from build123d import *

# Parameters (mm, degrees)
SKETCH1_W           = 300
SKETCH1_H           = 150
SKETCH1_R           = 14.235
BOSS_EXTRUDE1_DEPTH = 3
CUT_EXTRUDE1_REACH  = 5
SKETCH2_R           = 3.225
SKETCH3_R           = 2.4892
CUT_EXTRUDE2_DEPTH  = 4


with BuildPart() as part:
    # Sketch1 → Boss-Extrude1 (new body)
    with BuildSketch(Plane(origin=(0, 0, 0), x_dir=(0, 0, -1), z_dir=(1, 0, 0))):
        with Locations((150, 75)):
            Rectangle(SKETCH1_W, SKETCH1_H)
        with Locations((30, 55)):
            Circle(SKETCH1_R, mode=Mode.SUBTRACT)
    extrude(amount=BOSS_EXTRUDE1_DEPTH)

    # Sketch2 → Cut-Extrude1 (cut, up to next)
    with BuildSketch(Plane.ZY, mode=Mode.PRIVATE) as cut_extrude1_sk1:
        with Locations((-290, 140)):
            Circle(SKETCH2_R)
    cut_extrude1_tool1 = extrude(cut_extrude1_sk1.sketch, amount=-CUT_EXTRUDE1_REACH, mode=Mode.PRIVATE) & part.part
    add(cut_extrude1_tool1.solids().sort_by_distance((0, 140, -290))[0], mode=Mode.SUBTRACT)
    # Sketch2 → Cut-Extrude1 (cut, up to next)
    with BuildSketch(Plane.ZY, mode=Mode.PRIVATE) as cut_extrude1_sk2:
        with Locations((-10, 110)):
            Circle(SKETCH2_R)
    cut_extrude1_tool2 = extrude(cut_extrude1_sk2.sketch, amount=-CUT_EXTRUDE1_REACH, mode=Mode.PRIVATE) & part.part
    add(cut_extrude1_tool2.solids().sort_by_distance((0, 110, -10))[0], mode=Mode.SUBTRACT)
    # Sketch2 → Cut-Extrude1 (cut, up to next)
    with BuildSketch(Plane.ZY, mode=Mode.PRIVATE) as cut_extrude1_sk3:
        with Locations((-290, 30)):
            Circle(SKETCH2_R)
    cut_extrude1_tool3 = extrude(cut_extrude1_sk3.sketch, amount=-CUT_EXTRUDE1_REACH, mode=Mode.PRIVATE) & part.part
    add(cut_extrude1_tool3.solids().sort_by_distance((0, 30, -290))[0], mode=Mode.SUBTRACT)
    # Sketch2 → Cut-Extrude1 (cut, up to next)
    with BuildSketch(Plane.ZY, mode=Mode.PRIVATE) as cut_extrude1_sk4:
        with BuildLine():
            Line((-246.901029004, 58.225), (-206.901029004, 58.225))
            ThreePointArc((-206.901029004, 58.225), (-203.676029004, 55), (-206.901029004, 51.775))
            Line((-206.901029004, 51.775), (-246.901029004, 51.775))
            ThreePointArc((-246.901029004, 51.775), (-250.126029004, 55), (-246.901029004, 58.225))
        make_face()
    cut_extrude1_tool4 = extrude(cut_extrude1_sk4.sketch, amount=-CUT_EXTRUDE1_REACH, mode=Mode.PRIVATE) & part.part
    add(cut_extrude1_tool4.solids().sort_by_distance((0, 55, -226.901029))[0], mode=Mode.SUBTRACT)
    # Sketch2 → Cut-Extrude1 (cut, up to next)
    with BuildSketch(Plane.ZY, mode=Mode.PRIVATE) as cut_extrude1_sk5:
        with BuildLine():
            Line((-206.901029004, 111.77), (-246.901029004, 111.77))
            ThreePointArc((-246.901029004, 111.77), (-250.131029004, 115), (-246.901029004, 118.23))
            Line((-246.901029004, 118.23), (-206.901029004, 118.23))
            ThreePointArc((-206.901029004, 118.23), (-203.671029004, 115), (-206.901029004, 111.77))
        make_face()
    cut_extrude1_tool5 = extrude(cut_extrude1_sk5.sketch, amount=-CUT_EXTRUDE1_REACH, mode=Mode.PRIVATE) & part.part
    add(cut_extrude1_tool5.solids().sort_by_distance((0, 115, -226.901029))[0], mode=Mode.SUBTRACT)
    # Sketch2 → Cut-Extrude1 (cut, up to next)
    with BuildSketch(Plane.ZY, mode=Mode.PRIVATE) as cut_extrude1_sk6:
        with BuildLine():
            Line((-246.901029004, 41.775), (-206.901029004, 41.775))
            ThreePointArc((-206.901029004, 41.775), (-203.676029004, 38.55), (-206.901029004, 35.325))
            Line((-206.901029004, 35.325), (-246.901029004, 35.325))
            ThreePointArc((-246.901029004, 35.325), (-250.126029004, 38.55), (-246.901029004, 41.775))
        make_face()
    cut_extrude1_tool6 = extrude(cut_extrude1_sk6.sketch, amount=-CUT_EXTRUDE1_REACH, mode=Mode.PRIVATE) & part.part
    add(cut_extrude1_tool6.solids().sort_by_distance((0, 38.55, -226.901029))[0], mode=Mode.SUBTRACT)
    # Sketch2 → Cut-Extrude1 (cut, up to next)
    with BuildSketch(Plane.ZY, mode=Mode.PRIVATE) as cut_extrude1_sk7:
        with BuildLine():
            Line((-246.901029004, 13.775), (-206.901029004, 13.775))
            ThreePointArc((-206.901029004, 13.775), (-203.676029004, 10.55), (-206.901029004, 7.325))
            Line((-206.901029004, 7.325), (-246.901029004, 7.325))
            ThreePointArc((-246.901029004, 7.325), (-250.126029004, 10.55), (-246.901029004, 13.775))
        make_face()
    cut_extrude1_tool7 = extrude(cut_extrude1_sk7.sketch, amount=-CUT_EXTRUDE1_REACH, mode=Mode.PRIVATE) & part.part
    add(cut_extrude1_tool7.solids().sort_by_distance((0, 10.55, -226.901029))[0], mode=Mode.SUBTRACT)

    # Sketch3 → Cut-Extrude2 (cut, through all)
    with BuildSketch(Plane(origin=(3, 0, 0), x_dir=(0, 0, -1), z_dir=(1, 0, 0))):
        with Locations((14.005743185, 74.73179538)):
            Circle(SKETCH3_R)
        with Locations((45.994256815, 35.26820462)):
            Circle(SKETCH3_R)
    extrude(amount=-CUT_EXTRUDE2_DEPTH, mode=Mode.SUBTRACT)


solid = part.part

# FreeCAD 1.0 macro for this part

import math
import FreeCAD as App
import Part
import Sketcher
from FreeCAD import Vector


def add_polygon(sketch, points):
    """Adds a closed chain of lines whose ends are joined by coincident constraints."""
    first, n = sketch.GeometryCount, len(points)
    for a, b in zip(points, points[1:] + points[:1]):
        sketch.addGeometry(Part.LineSegment(App.Vector(*a, 0), App.Vector(*b, 0)), False)
    for i in range(n):
        sketch.addConstraint(Sketcher.Constraint("Coincident", first + i, 2, first + (i + 1) % n, 1))

doc = App.newDocument("Part")
body = doc.addObject("PartDesign::Body", "Body")

# Sketch on YZ plane
sketch1 = body.newObject("Sketcher::SketchObject", "Sketch")
sketch1.AttachmentSupport = (doc.getObject("YZ_Plane"), [""])
sketch1.MapMode = "FlatFace"
add_polygon(sketch1, [(150, 0), (0, 0), (0, -300), (150, -300)])  # lines 0-3
sketch1.addGeometry(Part.Circle(Vector(55, -30, 0), Vector(0, 0, 1), 14.235), False)  # 4
sketch1.addConstraint([
    Sketcher.Constraint("Horizontal", 0),
    Sketcher.Constraint("Vertical", 1),
    Sketcher.Constraint("Horizontal", 2),
    Sketcher.Constraint("Vertical", 3),
    Sketcher.Constraint("Coincident", 0, 2, -1, 1),
    Sketcher.Constraint("Diameter", 4, 28.47),
    Sketcher.Constraint("DistanceX", 0, 2, 0, 1, 150.0),
    Sketcher.Constraint("DistanceY", 1, 2, 1, 1, 300.0),
    Sketcher.Constraint("DistanceX", -1, 1, 4, 3, 55.0),
    Sketcher.Constraint("DistanceY", 4, 3, -1, 1, 30.0),
])
pad1 = body.newObject("PartDesign::Pad", "Pad")
pad1.Profile = sketch1
pad1.Length = 3

# Sketch on YZ plane
sketch2 = body.newObject("Sketcher::SketchObject", "Sketch001")
sketch2.AttachmentSupport = (doc.getObject("YZ_Plane"), [""])
sketch2.MapMode = "FlatFace"
sketch2.addGeometry(Part.Circle(Vector(140, -290, 0), Vector(0, 0, 1), 3.225), False)
sketch2.addConstraint([
    Sketcher.Constraint("Diameter", 0, 6.45),
    Sketcher.Constraint("DistanceX", -1, 1, 0, 3, 140.0),
    Sketcher.Constraint("DistanceY", 0, 3, -1, 1, 290.0),
])
pocket1 = body.newObject("PartDesign::Pocket", "Pocket")
pocket1.Profile = sketch2
pocket1.Type = "UpToFirst"
pocket1.Reversed = True

# Sketch on YZ plane
sketch3 = body.newObject("Sketcher::SketchObject", "Sketch002")
sketch3.AttachmentSupport = (doc.getObject("YZ_Plane"), [""])
sketch3.MapMode = "FlatFace"
sketch3.addGeometry(Part.Circle(Vector(110, -10, 0), Vector(0, 0, 1), 3.225), False)
sketch3.addConstraint([
    Sketcher.Constraint("Diameter", 0, 6.45),
    Sketcher.Constraint("DistanceX", -1, 1, 0, 3, 110.0),
    Sketcher.Constraint("DistanceY", 0, 3, -1, 1, 10.0),
])
pocket2 = body.newObject("PartDesign::Pocket", "Pocket001")
pocket2.Profile = sketch3
pocket2.Type = "UpToFirst"
pocket2.Reversed = True

# Sketch on YZ plane
sketch4 = body.newObject("Sketcher::SketchObject", "Sketch003")
sketch4.AttachmentSupport = (doc.getObject("YZ_Plane"), [""])
sketch4.MapMode = "FlatFace"
sketch4.addGeometry(Part.Circle(Vector(30, -290, 0), Vector(0, 0, 1), 3.225), False)
sketch4.addConstraint([
    Sketcher.Constraint("Diameter", 0, 6.45),
    Sketcher.Constraint("DistanceX", -1, 1, 0, 3, 30.0),
    Sketcher.Constraint("DistanceY", 0, 3, -1, 1, 290.0),
])
pocket3 = body.newObject("PartDesign::Pocket", "Pocket002")
pocket3.Profile = sketch4
pocket3.Type = "UpToFirst"
pocket3.Reversed = True

# Sketch on YZ plane
sketch5 = body.newObject("Sketcher::SketchObject", "Sketch004")
sketch5.AttachmentSupport = (doc.getObject("YZ_Plane"), [""])
sketch5.MapMode = "FlatFace"
sketch5.addGeometry([
    Part.LineSegment(Vector(58.225, -206.901029, 0), Vector(58.225, -246.901029, 0)),
    Part.ArcOfCircle(Part.Circle(Vector(55, -246.901029, 0), Vector(0, 0, 1), 3.225), math.radians(180), math.radians(360)),
    Part.LineSegment(Vector(51.775, -246.901029, 0), Vector(51.775, -206.901029, 0)),
    Part.ArcOfCircle(Part.Circle(Vector(55, -206.901029, 0), Vector(0, 0, 1), 3.225), math.radians(0), math.radians(180)),
], False)
sketch5.addConstraint([
    Sketcher.Constraint("Tangent", 0, 2, 1, 2),
    Sketcher.Constraint("Tangent", 1, 1, 2, 1),
    Sketcher.Constraint("Tangent", 2, 2, 3, 2),
    Sketcher.Constraint("Tangent", 3, 1, 0, 1),
    Sketcher.Constraint("Vertical", 0),
    Sketcher.Constraint("Vertical", 2),
    Sketcher.Constraint("DistanceY", 0, 2, 0, 1, 40.0),
    Sketcher.Constraint("DistanceX", -1, 1, 1, 3, 55.0),
    Sketcher.Constraint("Radius", 1, 3.225),
    Sketcher.Constraint("DistanceY", 1, 3, -1, 1, 246.901029),
])
pocket4 = body.newObject("PartDesign::Pocket", "Pocket003")
pocket4.Profile = sketch5
pocket4.Type = "UpToFirst"
pocket4.Reversed = True

# Sketch on YZ plane
sketch6 = body.newObject("Sketcher::SketchObject", "Sketch005")
sketch6.AttachmentSupport = (doc.getObject("YZ_Plane"), [""])
sketch6.MapMode = "FlatFace"
sketch6.addGeometry([
    Part.LineSegment(Vector(111.77, -246.901029, 0), Vector(111.77, -206.901029, 0)),
    Part.ArcOfCircle(Part.Circle(Vector(115, -206.901029, 0), Vector(0, 0, 1), 3.23), math.radians(0), math.radians(180)),
    Part.LineSegment(Vector(118.23, -206.901029, 0), Vector(118.23, -246.901029, 0)),
    Part.ArcOfCircle(Part.Circle(Vector(115, -246.901029, 0), Vector(0, 0, 1), 3.23), math.radians(180), math.radians(360)),
], False)
sketch6.addConstraint([
    Sketcher.Constraint("Tangent", 0, 2, 1, 2),
    Sketcher.Constraint("Tangent", 1, 1, 2, 1),
    Sketcher.Constraint("Tangent", 2, 2, 3, 2),
    Sketcher.Constraint("Tangent", 3, 1, 0, 1),
    Sketcher.Constraint("Vertical", 0),
    Sketcher.Constraint("Vertical", 2),
    Sketcher.Constraint("DistanceY", 0, 1, 0, 2, 40.0),
    Sketcher.Constraint("Radius", 1, 3.23),
    Sketcher.Constraint("DistanceX", -1, 1, 1, 3, 115.0),
    Sketcher.Constraint("DistanceY", 1, 3, -1, 1, 206.901029),
])
pocket5 = body.newObject("PartDesign::Pocket", "Pocket004")
pocket5.Profile = sketch6
pocket5.Type = "UpToFirst"
pocket5.Reversed = True

# Sketch on YZ plane
sketch7 = body.newObject("Sketcher::SketchObject", "Sketch006")
sketch7.AttachmentSupport = (doc.getObject("YZ_Plane"), [""])
sketch7.MapMode = "FlatFace"
sketch7.addGeometry([
    Part.LineSegment(Vector(41.775, -206.901029, 0), Vector(41.775, -246.901029, 0)),
    Part.ArcOfCircle(Part.Circle(Vector(38.55, -246.901029, 0), Vector(0, 0, 1), 3.225), math.radians(180), math.radians(360)),
    Part.LineSegment(Vector(35.325, -246.901029, 0), Vector(35.325, -206.901029, 0)),
    Part.ArcOfCircle(Part.Circle(Vector(38.55, -206.901029, 0), Vector(0, 0, 1), 3.225), math.radians(0), math.radians(180)),
], False)
sketch7.addConstraint([
    Sketcher.Constraint("Tangent", 0, 2, 1, 2),
    Sketcher.Constraint("Tangent", 1, 1, 2, 1),
    Sketcher.Constraint("Tangent", 2, 2, 3, 2),
    Sketcher.Constraint("Tangent", 3, 1, 0, 1),
    Sketcher.Constraint("Vertical", 0),
    Sketcher.Constraint("Vertical", 2),
    Sketcher.Constraint("DistanceY", 0, 2, 0, 1, 40.0),
    Sketcher.Constraint("Radius", 1, 3.225),
    Sketcher.Constraint("DistanceX", -1, 1, 1, 3, 38.55),
    Sketcher.Constraint("DistanceY", 1, 3, -1, 1, 246.901029),
])
pocket6 = body.newObject("PartDesign::Pocket", "Pocket005")
pocket6.Profile = sketch7
pocket6.Type = "UpToFirst"
pocket6.Reversed = True

# Sketch on YZ plane
sketch8 = body.newObject("Sketcher::SketchObject", "Sketch007")
sketch8.AttachmentSupport = (doc.getObject("YZ_Plane"), [""])
sketch8.MapMode = "FlatFace"
sketch8.addGeometry([
    Part.LineSegment(Vector(13.775, -206.901029, 0), Vector(13.775, -246.901029, 0)),
    Part.ArcOfCircle(Part.Circle(Vector(10.55, -246.901029, 0), Vector(0, 0, 1), 3.225), math.radians(180), math.radians(360)),
    Part.LineSegment(Vector(7.325, -246.901029, 0), Vector(7.325, -206.901029, 0)),
    Part.ArcOfCircle(Part.Circle(Vector(10.55, -206.901029, 0), Vector(0, 0, 1), 3.225), math.radians(0), math.radians(180)),
], False)
sketch8.addConstraint([
    Sketcher.Constraint("Tangent", 0, 2, 1, 2),
    Sketcher.Constraint("Tangent", 1, 1, 2, 1),
    Sketcher.Constraint("Tangent", 2, 2, 3, 2),
    Sketcher.Constraint("Tangent", 3, 1, 0, 1),
    Sketcher.Constraint("Vertical", 0),
    Sketcher.Constraint("Vertical", 2),
    Sketcher.Constraint("DistanceY", 0, 2, 0, 1, 40.0),
    Sketcher.Constraint("Radius", 1, 3.225),
    Sketcher.Constraint("DistanceX", -1, 1, 1, 3, 10.55),
    Sketcher.Constraint("DistanceY", 1, 3, -1, 1, 246.901029),
])
pocket7 = body.newObject("PartDesign::Pocket", "Pocket006")
pocket7.Profile = sketch8
pocket7.Type = "UpToFirst"
pocket7.Reversed = True

# Sketch on YZ plane
sketch9 = body.newObject("Sketcher::SketchObject", "Sketch008")
sketch9.AttachmentSupport = (doc.getObject("YZ_Plane"), [""])
sketch9.MapMode = "FlatFace"
sketch9.AttachmentOffset = App.Placement(Vector(0, 0, 3), App.Rotation())
sketch9.addGeometry([
    Part.Circle(Vector(74.731795, -14.005743, 0), Vector(0, 0, 1), 2.4892),
    Part.Circle(Vector(35.268205, -45.994257, 0), Vector(0, 0, 1), 2.4892),
], False)
sketch9.addConstraint([
    Sketcher.Constraint("Equal", 0, 1),
    Sketcher.Constraint("Diameter", 0, 4.9784),
    Sketcher.Constraint("DistanceX", 1, 3, 0, 3, 39.463591),
    Sketcher.Constraint("DistanceX", -1, 1, 0, 3, 74.731795),
    Sketcher.Constraint("DistanceY", 0, 3, -1, 1, 14.005743),
    Sketcher.Constraint("DistanceY", 1, 3, -1, 1, 45.994257),
])
pocket8 = body.newObject("PartDesign::Pocket", "Pocket007")
pocket8.Profile = sketch9
pocket8.Type = "ThroughAll"

doc.recompute()
